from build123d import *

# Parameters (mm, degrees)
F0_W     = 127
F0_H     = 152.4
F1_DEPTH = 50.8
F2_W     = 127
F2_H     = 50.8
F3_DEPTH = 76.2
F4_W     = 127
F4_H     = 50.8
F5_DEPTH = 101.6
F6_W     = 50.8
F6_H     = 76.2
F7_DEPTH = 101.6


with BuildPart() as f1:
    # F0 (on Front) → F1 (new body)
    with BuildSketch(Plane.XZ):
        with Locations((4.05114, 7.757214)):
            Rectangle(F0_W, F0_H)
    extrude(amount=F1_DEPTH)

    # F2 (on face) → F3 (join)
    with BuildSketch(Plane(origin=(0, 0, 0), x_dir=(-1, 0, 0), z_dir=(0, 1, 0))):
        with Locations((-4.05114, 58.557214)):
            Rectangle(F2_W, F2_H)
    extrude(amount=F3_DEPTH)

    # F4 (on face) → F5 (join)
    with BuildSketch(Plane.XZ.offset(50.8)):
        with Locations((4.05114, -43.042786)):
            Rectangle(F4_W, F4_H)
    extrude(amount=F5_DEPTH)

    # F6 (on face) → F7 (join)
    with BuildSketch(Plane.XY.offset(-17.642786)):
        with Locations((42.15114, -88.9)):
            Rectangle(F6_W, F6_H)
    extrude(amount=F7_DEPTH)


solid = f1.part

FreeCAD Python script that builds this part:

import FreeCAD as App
import Part
import Sketcher

V = App.Vector
Q = App.Units.Quantity


def add_polygon(sketch, points):
    """Adds a closed chain of lines whose ends are joined by coincident constraints."""
    first, n = sketch.GeometryCount, len(points)
    for a, b in zip(points, points[1:] + points[:1]):
        sketch.addGeometry(Part.LineSegment(App.Vector(*a, 0), App.Vector(*b, 0)), False)
    for i in range(n):
        sketch.addConstraint(Sketcher.Constraint("Coincident", first + i, 2, first + (i + 1) % n, 1))

doc = App.newDocument("Part")
params = doc.addObject("Spreadsheet::Sheet", "Params")
for row, (alias, value) in enumerate([
    ("sketch1_width", "5 in"),
    ("sketch1_height", "6 in"),
    ("pad1_length", "2 in"),
    ("sketch2_width", "5 in"),
    ("sketch2_height", "2 in"),
    ("pad2_length", "3 in"),
    ("sketch3_width", "5 in"),
    ("sketch3_height", "2 in"),
    ("pad3_length", "4 in"),
    ("sketch4_width", "2 in"),
    ("sketch4_height", "3 in"),
    ("pad4_length", "4 in"),
], start=1):
    params.set(f"A{row}", alias)
    params.set(f"B{row}", "=" + value)
    params.setAlias(f"B{row}", alias)

body = doc.addObject("PartDesign::Body", "Body")

sketch1 = body.newObject("Sketcher::SketchObject", "Sketch")
sketch1.AttachmentSupport = (doc.getObject("XZ_Plane"), [""])
sketch1.MapMode = "FlatFace"
add_polygon(sketch1, [(-59, 84), (-59, -68), (68, -68), (68, 84)])
sketch1.addConstraint(Sketcher.Constraint("Vertical", 0))
sketch1.addConstraint(Sketcher.Constraint("Horizontal", 1))
sketch1.addConstraint(Sketcher.Constraint("Vertical", 2))
sketch1.addConstraint(Sketcher.Constraint("Horizontal", 3))
sketch1.addConstraint(Sketcher.Constraint("DistanceX", 1, 1, 1, 2, Q("5 in")))
sketch1.addConstraint(Sketcher.Constraint("DistanceY", 0, 2, 0, 1, Q("6 in")))
sketch1.addConstraint(Sketcher.Constraint("DistanceX", 0, 2, -1, 1, Q("59.44886 mm")))
sketch1.addConstraint(Sketcher.Constraint("DistanceY", 0, 2, -1, 1, Q("68.442786 mm")))
sketch1.setExpression("Constraints[8]", "Params.sketch1_width")
sketch1.setExpression("Constraints[9]", "Params.sketch1_height")
pad1 = body.newObject("PartDesign::Pad", "Pad")
pad1.Profile = sketch1
pad1.setExpression("Length", "Params.pad1_length")

sketch2 = body.newObject("Sketcher::SketchObject", "Sketch001")
sketch2.AttachmentSupport = (doc.getObject("XZ_Plane"), [""])
sketch2.MapMode = "FlatFace"
add_polygon(sketch2, [(68, 84), (68, 33), (-59, 33), (-59, 84)])
sketch2.addConstraint(Sketcher.Constraint("Vertical", 0))
sketch2.addConstraint(Sketcher.Constraint("Horizontal", 1))
sketch2.addConstraint(Sketcher.Constraint("Vertical", 2))
sketch2.addConstraint(Sketcher.Constraint("Horizontal", 3))
sketch2.addConstraint(Sketcher.Constraint("DistanceX", 1, 2, 1, 1, Q("5 in")))
sketch2.addConstraint(Sketcher.Constraint("DistanceY", 0, 2, 0, 1, Q("2 in")))
sketch2.addConstraint(Sketcher.Constraint("DistanceX", -1, 1, 0, 2, Q("67.55114 mm")))
sketch2.addConstraint(Sketcher.Constraint("DistanceY", -1, 1, 0, 2, Q("33.157214 mm")))
sketch2.setExpression("Constraints[8]", "Params.sketch2_width")
sketch2.setExpression("Constraints[9]", "Params.sketch2_height")
pad2 = body.newObject("PartDesign::Pad", "Pad001")
pad2.Profile = sketch2
pad2.setExpression("Length", "Params.pad2_length")
pad2.Reversed = True

sketch3 = body.newObject("Sketcher::SketchObject", "Sketch002")
sketch3.AttachmentSupport = (doc.getObject("XZ_Plane"), [""])
sketch3.MapMode = "FlatFace"
sketch3.AttachmentOffset = App.Placement(V(0, 0, 2 * 25.4), App.Rotation())
add_polygon(sketch3, [(-59, -18), (-59, -68), (68, -68), (68, -18)])
sketch3.addConstraint(Sketcher.Constraint("Vertical", 0))
sketch3.addConstraint(Sketcher.Constraint("Horizontal", 1))
sketch3.addConstraint(Sketcher.Constraint("Vertical", 2))
sketch3.addConstraint(Sketcher.Constraint("Horizontal", 3))
sketch3.addConstraint(Sketcher.Constraint("DistanceX", 1, 1, 1, 2, Q("5 in")))
sketch3.addConstraint(Sketcher.Constraint("DistanceY", 0, 2, 0, 1, Q("2 in")))
sketch3.addConstraint(Sketcher.Constraint("DistanceX", 0, 2, -1, 1, Q("59.44886 mm")))
sketch3.addConstraint(Sketcher.Constraint("DistanceY", 0, 2, -1, 1, Q("68.442786 mm")))
sketch3.setExpression("Constraints[8]", "Params.sketch3_width")
sketch3.setExpression("Constraints[9]", "Params.sketch3_height")
pad3 = body.newObject("PartDesign::Pad", "Pad002")
pad3.Profile = sketch3
pad3.setExpression("Length", "Params.pad3_length")

sketch4 = body.newObject("Sketcher::SketchObject", "Sketch003")
sketch4.AttachmentSupport = (doc.getObject("XY_Plane"), [""])
sketch4.MapMode = "FlatFace"
sketch4.AttachmentOffset = App.Placement(V(0, 0, -17.642786), App.Rotation())
add_polygon(sketch4, [(17, -51), (17, -127), (68, -127), (68, -51)])
sketch4.addConstraint(Sketcher.Constraint("Vertical", 0))
sketch4.addConstraint(Sketcher.Constraint("Horizontal", 1))
sketch4.addConstraint(Sketcher.Constraint("Vertical", 2))
sketch4.addConstraint(Sketcher.Constraint("Horizontal", 3))
sketch4.addConstraint(Sketcher.Constraint("DistanceX", 1, 1, 1, 2, Q("2 in")))
sketch4.addConstraint(Sketcher.Constraint("DistanceY", 0, 2, 0, 1, Q("3 in")))
sketch4.addConstraint(Sketcher.Constraint("DistanceY", 0, 2, -1, 1, Q("5 in")))
sketch4.addConstraint(Sketcher.Constraint("DistanceX", -1, 1, 0, 2, Q("16.75114 mm")))
sketch4.setExpression("Constraints[8]", "Params.sketch4_width")
sketch4.setExpression("Constraints[9]", "Params.sketch4_height")
pad4 = body.newObject("PartDesign::Pad", "Pad003")
pad4.Profile = sketch4
pad4.setExpression("Length", "Params.pad4_length")

doc.recompute()
